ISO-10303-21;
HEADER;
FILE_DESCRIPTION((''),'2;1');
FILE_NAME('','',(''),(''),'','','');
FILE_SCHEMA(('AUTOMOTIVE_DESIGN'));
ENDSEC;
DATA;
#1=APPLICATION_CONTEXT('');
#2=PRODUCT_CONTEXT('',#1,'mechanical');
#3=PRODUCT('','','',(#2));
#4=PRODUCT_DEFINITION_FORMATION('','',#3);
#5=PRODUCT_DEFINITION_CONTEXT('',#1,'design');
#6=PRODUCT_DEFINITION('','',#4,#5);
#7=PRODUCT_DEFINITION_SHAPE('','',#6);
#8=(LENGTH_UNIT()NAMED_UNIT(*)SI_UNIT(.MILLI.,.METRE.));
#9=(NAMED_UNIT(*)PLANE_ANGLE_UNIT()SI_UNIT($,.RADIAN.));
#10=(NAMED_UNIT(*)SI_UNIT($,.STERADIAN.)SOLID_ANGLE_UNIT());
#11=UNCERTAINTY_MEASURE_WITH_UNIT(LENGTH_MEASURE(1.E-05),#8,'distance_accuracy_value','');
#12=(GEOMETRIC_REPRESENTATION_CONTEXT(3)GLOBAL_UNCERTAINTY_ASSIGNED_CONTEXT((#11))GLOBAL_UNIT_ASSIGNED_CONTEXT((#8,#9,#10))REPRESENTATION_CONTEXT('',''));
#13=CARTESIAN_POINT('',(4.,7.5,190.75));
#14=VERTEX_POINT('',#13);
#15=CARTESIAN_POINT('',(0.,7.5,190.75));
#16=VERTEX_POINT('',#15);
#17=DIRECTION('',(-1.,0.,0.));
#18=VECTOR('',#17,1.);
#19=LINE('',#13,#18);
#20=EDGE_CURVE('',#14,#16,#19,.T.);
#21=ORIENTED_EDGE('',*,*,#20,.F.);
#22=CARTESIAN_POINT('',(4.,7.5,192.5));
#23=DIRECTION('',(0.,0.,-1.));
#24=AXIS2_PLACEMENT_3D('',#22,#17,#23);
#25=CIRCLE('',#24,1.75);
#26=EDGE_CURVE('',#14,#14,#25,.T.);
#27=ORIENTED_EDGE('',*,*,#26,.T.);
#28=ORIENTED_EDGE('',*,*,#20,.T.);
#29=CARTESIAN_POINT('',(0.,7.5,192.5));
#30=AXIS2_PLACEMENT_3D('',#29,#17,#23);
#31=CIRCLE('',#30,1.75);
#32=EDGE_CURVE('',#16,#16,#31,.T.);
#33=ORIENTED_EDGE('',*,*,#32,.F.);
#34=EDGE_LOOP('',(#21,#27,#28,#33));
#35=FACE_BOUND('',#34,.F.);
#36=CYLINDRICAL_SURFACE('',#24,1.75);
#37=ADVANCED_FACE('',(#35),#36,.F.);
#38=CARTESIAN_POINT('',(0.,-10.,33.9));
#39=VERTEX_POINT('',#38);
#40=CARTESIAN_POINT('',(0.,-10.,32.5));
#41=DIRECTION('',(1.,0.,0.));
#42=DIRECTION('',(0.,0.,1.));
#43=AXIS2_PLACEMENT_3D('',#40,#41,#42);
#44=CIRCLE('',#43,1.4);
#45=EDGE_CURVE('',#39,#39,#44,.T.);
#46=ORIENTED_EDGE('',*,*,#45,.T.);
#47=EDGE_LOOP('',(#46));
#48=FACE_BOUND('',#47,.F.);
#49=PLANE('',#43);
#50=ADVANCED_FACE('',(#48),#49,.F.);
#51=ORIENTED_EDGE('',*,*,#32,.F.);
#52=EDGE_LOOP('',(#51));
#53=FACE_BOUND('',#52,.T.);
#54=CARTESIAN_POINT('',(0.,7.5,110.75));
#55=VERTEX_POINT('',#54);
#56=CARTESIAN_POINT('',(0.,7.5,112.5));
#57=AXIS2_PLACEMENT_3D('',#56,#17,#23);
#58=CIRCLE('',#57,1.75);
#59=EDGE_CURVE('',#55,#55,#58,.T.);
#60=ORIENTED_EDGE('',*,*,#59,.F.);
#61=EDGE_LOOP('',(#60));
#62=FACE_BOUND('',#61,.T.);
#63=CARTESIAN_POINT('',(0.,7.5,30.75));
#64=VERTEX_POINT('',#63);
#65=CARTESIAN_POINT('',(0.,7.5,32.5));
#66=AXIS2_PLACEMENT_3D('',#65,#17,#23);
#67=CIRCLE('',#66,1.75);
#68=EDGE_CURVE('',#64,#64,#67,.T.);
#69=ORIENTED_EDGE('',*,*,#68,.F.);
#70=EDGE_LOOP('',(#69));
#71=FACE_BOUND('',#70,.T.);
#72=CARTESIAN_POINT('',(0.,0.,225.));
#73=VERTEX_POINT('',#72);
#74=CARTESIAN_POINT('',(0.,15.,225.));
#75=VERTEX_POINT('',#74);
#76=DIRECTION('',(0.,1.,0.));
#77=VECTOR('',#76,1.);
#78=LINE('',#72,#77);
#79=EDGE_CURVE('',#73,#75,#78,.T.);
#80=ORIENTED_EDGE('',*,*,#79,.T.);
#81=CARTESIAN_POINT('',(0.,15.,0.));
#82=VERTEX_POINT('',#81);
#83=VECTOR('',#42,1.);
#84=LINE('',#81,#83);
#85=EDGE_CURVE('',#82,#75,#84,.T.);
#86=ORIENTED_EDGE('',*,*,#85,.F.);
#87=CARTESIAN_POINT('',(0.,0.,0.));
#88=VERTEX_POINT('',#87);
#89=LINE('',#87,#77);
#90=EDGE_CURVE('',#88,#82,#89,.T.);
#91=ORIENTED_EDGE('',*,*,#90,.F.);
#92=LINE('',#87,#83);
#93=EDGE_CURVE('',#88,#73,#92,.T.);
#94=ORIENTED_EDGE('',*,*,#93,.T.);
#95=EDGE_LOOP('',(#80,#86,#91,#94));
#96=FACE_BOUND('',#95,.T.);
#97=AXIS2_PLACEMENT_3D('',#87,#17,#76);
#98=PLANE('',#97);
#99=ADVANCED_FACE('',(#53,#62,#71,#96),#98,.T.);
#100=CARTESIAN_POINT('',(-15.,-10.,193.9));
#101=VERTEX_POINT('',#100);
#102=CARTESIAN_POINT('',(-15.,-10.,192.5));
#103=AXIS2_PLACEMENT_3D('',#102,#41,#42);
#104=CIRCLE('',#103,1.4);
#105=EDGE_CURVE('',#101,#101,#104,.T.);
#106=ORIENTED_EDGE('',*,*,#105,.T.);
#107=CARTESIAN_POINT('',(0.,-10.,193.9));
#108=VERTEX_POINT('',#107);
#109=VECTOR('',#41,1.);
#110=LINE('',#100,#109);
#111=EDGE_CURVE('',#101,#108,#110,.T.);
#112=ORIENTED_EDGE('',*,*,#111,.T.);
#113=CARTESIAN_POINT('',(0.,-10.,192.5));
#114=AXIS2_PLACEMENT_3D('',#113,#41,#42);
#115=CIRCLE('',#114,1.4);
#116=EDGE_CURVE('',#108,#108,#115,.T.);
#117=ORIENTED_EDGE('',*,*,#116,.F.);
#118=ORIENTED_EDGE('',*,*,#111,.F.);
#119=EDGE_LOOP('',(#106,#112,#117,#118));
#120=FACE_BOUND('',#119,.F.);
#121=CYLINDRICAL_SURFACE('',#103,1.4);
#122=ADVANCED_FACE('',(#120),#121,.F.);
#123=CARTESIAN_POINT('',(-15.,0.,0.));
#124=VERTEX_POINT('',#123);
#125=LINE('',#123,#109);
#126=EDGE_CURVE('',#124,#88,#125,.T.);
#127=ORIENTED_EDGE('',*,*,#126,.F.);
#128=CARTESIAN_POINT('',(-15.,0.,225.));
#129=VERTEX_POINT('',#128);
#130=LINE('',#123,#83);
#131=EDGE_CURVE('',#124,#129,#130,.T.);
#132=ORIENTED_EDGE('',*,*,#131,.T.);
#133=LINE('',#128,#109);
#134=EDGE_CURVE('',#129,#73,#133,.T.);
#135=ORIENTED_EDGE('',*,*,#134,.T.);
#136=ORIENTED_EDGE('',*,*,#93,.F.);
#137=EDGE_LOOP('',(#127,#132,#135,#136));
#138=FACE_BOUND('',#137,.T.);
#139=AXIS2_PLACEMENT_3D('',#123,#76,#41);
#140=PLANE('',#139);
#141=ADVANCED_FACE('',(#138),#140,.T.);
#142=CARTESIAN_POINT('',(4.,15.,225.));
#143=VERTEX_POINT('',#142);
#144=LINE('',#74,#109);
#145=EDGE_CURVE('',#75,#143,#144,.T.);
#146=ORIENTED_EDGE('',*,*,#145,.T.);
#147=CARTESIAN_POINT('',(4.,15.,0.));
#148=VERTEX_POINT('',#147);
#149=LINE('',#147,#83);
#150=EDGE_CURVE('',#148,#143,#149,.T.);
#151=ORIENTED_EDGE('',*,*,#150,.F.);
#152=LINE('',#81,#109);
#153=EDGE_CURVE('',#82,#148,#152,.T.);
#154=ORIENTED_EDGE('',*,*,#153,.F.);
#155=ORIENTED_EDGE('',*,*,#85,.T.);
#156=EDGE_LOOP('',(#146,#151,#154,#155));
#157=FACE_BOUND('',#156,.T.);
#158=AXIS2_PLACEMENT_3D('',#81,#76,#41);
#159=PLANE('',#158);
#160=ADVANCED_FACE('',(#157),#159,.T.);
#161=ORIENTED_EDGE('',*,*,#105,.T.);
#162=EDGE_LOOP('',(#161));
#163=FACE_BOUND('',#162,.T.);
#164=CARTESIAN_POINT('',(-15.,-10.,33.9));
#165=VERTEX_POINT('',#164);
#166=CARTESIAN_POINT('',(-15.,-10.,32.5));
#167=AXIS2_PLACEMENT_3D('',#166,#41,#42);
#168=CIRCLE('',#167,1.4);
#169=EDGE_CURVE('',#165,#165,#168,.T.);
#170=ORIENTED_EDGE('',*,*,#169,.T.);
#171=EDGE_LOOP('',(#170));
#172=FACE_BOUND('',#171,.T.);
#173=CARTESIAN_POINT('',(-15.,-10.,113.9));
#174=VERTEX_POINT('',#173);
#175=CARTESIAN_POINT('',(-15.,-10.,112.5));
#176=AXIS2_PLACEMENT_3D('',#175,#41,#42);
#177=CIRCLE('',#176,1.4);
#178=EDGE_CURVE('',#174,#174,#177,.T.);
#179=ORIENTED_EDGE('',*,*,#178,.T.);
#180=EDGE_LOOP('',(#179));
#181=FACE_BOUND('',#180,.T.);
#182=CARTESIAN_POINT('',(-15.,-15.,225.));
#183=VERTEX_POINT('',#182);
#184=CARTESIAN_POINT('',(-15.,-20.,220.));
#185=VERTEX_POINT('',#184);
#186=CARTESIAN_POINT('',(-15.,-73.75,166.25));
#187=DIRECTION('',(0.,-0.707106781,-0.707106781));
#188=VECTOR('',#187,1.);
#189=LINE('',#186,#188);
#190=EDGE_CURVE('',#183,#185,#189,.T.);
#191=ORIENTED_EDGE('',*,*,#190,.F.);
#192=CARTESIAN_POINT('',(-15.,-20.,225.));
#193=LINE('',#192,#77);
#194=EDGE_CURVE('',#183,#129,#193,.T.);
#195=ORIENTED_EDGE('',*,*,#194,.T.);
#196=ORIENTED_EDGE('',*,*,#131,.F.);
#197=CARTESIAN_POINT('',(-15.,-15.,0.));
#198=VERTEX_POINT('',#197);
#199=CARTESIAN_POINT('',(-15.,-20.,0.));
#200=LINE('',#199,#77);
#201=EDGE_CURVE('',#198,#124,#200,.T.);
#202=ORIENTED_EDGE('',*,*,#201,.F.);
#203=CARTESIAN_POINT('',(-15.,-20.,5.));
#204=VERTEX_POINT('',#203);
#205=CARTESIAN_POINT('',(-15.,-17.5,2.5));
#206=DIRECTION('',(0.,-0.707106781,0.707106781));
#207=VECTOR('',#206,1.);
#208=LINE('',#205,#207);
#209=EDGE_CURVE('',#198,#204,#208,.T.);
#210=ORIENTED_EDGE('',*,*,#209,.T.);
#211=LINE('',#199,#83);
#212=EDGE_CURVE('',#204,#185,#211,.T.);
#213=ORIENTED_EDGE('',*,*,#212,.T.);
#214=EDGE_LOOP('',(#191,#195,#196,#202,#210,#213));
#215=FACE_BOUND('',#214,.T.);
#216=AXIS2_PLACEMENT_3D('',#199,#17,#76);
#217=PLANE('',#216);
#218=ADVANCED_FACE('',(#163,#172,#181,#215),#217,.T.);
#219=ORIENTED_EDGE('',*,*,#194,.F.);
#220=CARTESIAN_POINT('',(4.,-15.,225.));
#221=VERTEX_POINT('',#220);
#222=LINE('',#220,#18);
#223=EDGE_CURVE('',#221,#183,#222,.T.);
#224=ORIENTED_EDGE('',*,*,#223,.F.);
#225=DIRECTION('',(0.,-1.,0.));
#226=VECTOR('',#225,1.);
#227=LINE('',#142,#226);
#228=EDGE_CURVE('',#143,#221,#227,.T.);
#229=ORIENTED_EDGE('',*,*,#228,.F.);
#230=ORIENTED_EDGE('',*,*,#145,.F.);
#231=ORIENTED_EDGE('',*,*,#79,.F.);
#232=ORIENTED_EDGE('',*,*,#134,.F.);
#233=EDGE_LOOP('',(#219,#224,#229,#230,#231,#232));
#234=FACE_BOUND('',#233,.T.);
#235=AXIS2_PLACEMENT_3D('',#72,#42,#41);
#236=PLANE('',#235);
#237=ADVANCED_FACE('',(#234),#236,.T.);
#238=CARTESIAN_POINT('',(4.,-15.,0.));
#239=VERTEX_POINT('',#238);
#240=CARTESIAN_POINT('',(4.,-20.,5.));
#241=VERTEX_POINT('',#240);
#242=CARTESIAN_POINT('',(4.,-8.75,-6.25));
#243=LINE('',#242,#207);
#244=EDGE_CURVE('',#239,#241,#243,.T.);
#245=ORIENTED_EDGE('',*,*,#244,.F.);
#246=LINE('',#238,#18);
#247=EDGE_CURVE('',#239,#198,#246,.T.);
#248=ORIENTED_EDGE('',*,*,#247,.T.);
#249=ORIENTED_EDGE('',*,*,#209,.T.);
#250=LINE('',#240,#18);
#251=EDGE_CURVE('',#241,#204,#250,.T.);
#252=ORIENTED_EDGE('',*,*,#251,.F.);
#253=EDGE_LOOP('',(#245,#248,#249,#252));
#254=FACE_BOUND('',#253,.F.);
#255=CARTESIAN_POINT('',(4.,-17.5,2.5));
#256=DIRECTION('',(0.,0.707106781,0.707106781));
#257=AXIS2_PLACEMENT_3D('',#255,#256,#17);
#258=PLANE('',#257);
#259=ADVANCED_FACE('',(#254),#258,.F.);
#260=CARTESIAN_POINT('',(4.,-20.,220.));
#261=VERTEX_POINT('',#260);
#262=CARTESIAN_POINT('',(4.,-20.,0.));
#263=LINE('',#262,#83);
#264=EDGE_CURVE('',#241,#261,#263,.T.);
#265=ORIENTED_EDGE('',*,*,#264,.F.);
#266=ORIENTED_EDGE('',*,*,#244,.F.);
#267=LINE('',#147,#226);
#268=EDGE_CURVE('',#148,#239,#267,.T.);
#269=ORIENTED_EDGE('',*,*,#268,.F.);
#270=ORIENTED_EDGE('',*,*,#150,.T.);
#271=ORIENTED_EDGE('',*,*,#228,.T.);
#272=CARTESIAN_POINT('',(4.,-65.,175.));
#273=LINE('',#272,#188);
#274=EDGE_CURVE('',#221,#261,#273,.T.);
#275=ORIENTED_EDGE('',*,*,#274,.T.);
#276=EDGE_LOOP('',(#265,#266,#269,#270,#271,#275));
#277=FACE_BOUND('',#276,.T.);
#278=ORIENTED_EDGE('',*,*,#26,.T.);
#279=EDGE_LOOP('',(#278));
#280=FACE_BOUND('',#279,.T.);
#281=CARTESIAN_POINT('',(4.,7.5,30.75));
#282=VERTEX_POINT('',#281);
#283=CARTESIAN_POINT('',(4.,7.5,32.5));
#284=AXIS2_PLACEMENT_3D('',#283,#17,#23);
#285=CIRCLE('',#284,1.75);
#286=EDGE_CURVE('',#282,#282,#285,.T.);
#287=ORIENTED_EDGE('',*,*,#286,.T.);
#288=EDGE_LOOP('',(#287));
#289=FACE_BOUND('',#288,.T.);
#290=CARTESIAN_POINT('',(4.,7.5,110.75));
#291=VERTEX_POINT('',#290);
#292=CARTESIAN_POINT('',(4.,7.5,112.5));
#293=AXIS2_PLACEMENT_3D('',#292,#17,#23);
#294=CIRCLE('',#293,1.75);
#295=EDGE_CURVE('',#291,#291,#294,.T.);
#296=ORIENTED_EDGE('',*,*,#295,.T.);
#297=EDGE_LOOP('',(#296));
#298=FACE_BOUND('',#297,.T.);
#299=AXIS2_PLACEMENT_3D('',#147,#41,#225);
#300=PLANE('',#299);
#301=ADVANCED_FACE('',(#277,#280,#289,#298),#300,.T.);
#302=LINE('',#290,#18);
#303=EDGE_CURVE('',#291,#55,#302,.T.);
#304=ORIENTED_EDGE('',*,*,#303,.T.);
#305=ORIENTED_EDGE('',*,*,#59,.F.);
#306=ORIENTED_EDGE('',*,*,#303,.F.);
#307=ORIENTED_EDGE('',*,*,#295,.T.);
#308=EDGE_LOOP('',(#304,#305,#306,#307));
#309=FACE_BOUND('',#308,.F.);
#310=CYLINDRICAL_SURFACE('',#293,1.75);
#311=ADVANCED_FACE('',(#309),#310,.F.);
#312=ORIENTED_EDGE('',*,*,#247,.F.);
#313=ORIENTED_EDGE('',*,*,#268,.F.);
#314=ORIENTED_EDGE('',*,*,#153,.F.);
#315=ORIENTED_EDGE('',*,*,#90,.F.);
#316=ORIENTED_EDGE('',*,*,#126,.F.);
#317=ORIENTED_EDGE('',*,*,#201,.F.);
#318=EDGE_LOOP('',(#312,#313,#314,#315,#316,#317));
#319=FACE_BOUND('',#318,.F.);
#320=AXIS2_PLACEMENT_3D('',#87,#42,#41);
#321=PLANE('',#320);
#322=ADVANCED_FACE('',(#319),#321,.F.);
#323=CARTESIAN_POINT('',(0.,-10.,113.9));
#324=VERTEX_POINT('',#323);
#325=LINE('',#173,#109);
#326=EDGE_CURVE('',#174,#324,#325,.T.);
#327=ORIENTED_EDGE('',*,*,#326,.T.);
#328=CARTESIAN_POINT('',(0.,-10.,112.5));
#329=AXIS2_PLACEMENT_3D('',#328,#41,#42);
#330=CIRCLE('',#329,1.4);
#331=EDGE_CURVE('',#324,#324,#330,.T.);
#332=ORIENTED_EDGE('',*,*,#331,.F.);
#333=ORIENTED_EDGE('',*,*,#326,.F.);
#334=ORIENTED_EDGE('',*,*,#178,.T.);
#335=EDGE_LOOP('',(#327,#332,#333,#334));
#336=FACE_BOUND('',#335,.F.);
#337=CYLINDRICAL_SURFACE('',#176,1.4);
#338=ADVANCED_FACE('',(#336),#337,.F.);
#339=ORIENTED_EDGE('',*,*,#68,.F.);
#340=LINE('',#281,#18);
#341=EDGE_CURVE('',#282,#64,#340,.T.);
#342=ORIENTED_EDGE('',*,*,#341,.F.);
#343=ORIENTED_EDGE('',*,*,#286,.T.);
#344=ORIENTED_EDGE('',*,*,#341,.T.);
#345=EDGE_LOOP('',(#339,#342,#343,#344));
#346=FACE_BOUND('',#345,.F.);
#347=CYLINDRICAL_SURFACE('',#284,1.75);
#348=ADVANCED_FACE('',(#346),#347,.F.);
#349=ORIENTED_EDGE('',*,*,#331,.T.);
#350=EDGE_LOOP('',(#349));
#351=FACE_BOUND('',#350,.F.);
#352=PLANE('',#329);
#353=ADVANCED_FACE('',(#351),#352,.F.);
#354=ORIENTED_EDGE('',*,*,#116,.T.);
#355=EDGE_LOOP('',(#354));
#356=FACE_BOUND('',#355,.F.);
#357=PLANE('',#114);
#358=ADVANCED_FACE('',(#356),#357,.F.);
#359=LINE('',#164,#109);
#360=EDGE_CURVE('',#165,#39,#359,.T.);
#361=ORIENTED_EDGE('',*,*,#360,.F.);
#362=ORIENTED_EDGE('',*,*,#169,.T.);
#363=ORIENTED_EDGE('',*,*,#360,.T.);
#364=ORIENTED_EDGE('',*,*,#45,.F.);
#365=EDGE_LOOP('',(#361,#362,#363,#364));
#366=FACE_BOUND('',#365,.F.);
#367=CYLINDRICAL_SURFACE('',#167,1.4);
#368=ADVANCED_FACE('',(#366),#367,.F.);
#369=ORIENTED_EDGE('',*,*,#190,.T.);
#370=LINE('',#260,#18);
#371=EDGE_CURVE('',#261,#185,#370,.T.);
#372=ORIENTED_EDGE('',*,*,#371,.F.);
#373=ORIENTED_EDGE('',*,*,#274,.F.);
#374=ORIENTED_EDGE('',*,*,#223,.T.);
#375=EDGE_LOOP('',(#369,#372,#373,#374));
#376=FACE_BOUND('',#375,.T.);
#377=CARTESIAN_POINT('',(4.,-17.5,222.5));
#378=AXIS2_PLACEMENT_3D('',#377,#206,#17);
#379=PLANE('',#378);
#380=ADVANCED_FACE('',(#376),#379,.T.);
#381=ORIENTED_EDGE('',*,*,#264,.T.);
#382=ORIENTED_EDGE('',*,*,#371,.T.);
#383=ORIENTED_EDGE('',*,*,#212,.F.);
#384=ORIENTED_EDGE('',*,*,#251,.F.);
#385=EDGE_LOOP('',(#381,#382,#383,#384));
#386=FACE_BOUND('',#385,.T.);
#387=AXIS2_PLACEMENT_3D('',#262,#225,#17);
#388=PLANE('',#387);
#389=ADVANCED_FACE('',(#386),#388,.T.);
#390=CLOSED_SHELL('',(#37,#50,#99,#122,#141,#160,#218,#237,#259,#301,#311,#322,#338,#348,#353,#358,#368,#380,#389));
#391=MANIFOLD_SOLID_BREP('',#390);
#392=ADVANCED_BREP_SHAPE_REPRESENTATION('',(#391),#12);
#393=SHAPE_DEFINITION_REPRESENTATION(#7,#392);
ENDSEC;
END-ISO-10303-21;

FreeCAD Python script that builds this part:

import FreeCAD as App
import Part
import Sketcher
from FreeCAD import Vector
Q = App.Units.Quantity


def edges_at(feature, points):
    """Names of the edges that pass closest to the given points."""
    edges = feature.Shape.Edges
    near = lambda p: min(range(len(edges)), key=lambda i: edges[i].distToShape(Part.Vertex(*p))[0])
    return sorted({f"Edge{near(p) + 1}" for p in points})

doc = App.newDocument("Part")
body = doc.addObject("PartDesign::Body", "Body")

# Sketch on XY plane
sketch1 = body.newObject("Sketcher::SketchObject", "Sketch")
sketch1.AttachmentSupport = (doc.getObject("XY_Plane"), [""])
sketch1.MapMode = "FlatFace"
sketch1.addGeometry([
    Part.LineSegment(Vector(0, 15, 0), Vector(0, 0, 0)),  # 0
    Part.LineSegment(Vector(0, 0, 0), Vector(-15, 0, 0)),  # 1
    Part.LineSegment(Vector(-15, 0, 0), Vector(-15, -20, 0)),  # 2
    Part.LineSegment(Vector(-15, -20, 0), Vector(4, -20, 0)),  # 3
    Part.LineSegment(Vector(4, -20, 0), Vector(4, 15, 0)),  # 4
    Part.LineSegment(Vector(4, 15, 0), Vector(0, 15, 0)),  # 5
], False)
sketch1.addConstraint([
    Sketcher.Constraint("Coincident", 0, 2, 1, 1),
    Sketcher.Constraint("Coincident", 1, 2, 2, 1),
    Sketcher.Constraint("Coincident", 2, 2, 3, 1),
    Sketcher.Constraint("Coincident", 3, 2, 4, 1),
    Sketcher.Constraint("Coincident", 4, 2, 5, 1),
    Sketcher.Constraint("Coincident", 5, 2, 0, 1),
    Sketcher.Constraint("Vertical", 0),
    Sketcher.Constraint("Horizontal", 1),
    Sketcher.Constraint("Vertical", 2),
    Sketcher.Constraint("Horizontal", 3),
    Sketcher.Constraint("Vertical", 4),
    Sketcher.Constraint("Horizontal", 5),
    Sketcher.Constraint("Coincident", 0, 2, -1, 1),
    Sketcher.Constraint("Equal", 1, 0),
    Sketcher.Constraint("DistanceX", 1, 2, 1, 1, Q("15 mm")),
    Sketcher.Constraint("DistanceX", 5, 2, 5, 1, Q("4 mm")),
    Sketcher.Constraint("DistanceY", 4, 1, 4, 2, Q("35 mm")),
])
pad1 = body.newObject("PartDesign::Pad", "Pad")
pad1.Profile = sketch1
pad1.Length = 225

# Sketch on YZ plane
sketch2 = body.newObject("Sketcher::SketchObject", "Sketch001")
sketch2.AttachmentSupport = (doc.getObject("YZ_Plane"), [""])
sketch2.MapMode = "FlatFace"
sketch2.AttachmentOffset = App.Placement(Vector(0, 0, 4), App.Rotation())
sketch2.addGeometry([
    Part.Circle(Vector(7.5, 192.5, 0), Vector(0, 0, 1), 1.8),
    Part.Circle(Vector(7.5, 112.5, 0), Vector(0, 0, 1), 1.8),
    Part.Circle(Vector(7.5, 32.5, 0), Vector(0, 0, 1), 1.8),
], False)
sketch2.addConstraint([
    Sketcher.Constraint("Equal", 0, 1),
    Sketcher.Constraint("Equal", 1, 2),
    Sketcher.Constraint("Vertical", 0, 3, 1, 3),
    Sketcher.Constraint("Vertical", 1, 3, 2, 3),
    Sketcher.Constraint("Diameter", 0, Q("3.5 mm")),
    Sketcher.Constraint("DistanceY", 1, 3, 0, 3, Q("80 mm")),
    Sketcher.Constraint("DistanceY", 2, 3, 1, 3, Q("80 mm")),
    Sketcher.Constraint("DistanceX", -1, 1, 0, 3, Q("7.5 mm")),
    Sketcher.Constraint("DistanceY", -1, 1, 0, 3, Q("192.5 mm")),
])
doc.recompute()
hole = body.newObject("PartDesign::Hole", "Hole")
hole.Profile = sketch2
hole.ThreadType = "None"
hole.Diameter = 3.5
hole.DepthType = "ThroughAll"
doc.recompute()

chamfer = body.newObject("PartDesign::Chamfer", "Chamfer")
chamfer.Base = (hole, edges_at(hole, [(-5.5, -20, 225), (-5.5, -20, 0)]))
chamfer.Size = 5

# Sketch on YZ plane
sketch3 = body.newObject("Sketcher::SketchObject", "Sketch002")
sketch3.AttachmentSupport = (doc.getObject("YZ_Plane"), [""])
sketch3.MapMode = "FlatFace"
sketch3.AttachmentOffset = App.Placement(Vector(0, 0, -15), App.Rotation())
sketch3.addGeometry([
    Part.Circle(Vector(-10, 32.5, 0), Vector(0, 0, 1), 1.4),
    Part.Circle(Vector(-10, 112.5, 0), Vector(0, 0, 1), 1.4),
    Part.Circle(Vector(-10, 192.5, 0), Vector(0, 0, 1), 1.4),
], False)
sketch3.addConstraint([
    Sketcher.Constraint("Equal", 0, 1),
    Sketcher.Constraint("Equal", 1, 2),
    Sketcher.Constraint("Vertical", 0, 3, 1, 3),
    Sketcher.Constraint("Vertical", 1, 3, 2, 3),
    Sketcher.Constraint("Diameter", 0, Q("2.8 mm")),
    Sketcher.Constraint("DistanceX", 0, 3, -1, 1, Q("10 mm")),
    Sketcher.Constraint("DistanceY", 0, 3, 1, 3, Q("80 mm")),
    Sketcher.Constraint("DistanceY", 1, 3, 2, 3, Q("80 mm")),
    Sketcher.Constraint("DistanceY", -1, 1, 0, 3, Q("32.5 mm")),
])
doc.recompute()
hole2 = body.newObject("PartDesign::Hole", "Hole001")
hole2.Profile = sketch3
hole2.ThreadType = "None"
hole2.Diameter = 2.8
hole2.DepthType = "Dimension"
hole2.Depth = 15
hole2.DrillPoint = "Flat"
hole2.Reversed = True

doc.recompute()
